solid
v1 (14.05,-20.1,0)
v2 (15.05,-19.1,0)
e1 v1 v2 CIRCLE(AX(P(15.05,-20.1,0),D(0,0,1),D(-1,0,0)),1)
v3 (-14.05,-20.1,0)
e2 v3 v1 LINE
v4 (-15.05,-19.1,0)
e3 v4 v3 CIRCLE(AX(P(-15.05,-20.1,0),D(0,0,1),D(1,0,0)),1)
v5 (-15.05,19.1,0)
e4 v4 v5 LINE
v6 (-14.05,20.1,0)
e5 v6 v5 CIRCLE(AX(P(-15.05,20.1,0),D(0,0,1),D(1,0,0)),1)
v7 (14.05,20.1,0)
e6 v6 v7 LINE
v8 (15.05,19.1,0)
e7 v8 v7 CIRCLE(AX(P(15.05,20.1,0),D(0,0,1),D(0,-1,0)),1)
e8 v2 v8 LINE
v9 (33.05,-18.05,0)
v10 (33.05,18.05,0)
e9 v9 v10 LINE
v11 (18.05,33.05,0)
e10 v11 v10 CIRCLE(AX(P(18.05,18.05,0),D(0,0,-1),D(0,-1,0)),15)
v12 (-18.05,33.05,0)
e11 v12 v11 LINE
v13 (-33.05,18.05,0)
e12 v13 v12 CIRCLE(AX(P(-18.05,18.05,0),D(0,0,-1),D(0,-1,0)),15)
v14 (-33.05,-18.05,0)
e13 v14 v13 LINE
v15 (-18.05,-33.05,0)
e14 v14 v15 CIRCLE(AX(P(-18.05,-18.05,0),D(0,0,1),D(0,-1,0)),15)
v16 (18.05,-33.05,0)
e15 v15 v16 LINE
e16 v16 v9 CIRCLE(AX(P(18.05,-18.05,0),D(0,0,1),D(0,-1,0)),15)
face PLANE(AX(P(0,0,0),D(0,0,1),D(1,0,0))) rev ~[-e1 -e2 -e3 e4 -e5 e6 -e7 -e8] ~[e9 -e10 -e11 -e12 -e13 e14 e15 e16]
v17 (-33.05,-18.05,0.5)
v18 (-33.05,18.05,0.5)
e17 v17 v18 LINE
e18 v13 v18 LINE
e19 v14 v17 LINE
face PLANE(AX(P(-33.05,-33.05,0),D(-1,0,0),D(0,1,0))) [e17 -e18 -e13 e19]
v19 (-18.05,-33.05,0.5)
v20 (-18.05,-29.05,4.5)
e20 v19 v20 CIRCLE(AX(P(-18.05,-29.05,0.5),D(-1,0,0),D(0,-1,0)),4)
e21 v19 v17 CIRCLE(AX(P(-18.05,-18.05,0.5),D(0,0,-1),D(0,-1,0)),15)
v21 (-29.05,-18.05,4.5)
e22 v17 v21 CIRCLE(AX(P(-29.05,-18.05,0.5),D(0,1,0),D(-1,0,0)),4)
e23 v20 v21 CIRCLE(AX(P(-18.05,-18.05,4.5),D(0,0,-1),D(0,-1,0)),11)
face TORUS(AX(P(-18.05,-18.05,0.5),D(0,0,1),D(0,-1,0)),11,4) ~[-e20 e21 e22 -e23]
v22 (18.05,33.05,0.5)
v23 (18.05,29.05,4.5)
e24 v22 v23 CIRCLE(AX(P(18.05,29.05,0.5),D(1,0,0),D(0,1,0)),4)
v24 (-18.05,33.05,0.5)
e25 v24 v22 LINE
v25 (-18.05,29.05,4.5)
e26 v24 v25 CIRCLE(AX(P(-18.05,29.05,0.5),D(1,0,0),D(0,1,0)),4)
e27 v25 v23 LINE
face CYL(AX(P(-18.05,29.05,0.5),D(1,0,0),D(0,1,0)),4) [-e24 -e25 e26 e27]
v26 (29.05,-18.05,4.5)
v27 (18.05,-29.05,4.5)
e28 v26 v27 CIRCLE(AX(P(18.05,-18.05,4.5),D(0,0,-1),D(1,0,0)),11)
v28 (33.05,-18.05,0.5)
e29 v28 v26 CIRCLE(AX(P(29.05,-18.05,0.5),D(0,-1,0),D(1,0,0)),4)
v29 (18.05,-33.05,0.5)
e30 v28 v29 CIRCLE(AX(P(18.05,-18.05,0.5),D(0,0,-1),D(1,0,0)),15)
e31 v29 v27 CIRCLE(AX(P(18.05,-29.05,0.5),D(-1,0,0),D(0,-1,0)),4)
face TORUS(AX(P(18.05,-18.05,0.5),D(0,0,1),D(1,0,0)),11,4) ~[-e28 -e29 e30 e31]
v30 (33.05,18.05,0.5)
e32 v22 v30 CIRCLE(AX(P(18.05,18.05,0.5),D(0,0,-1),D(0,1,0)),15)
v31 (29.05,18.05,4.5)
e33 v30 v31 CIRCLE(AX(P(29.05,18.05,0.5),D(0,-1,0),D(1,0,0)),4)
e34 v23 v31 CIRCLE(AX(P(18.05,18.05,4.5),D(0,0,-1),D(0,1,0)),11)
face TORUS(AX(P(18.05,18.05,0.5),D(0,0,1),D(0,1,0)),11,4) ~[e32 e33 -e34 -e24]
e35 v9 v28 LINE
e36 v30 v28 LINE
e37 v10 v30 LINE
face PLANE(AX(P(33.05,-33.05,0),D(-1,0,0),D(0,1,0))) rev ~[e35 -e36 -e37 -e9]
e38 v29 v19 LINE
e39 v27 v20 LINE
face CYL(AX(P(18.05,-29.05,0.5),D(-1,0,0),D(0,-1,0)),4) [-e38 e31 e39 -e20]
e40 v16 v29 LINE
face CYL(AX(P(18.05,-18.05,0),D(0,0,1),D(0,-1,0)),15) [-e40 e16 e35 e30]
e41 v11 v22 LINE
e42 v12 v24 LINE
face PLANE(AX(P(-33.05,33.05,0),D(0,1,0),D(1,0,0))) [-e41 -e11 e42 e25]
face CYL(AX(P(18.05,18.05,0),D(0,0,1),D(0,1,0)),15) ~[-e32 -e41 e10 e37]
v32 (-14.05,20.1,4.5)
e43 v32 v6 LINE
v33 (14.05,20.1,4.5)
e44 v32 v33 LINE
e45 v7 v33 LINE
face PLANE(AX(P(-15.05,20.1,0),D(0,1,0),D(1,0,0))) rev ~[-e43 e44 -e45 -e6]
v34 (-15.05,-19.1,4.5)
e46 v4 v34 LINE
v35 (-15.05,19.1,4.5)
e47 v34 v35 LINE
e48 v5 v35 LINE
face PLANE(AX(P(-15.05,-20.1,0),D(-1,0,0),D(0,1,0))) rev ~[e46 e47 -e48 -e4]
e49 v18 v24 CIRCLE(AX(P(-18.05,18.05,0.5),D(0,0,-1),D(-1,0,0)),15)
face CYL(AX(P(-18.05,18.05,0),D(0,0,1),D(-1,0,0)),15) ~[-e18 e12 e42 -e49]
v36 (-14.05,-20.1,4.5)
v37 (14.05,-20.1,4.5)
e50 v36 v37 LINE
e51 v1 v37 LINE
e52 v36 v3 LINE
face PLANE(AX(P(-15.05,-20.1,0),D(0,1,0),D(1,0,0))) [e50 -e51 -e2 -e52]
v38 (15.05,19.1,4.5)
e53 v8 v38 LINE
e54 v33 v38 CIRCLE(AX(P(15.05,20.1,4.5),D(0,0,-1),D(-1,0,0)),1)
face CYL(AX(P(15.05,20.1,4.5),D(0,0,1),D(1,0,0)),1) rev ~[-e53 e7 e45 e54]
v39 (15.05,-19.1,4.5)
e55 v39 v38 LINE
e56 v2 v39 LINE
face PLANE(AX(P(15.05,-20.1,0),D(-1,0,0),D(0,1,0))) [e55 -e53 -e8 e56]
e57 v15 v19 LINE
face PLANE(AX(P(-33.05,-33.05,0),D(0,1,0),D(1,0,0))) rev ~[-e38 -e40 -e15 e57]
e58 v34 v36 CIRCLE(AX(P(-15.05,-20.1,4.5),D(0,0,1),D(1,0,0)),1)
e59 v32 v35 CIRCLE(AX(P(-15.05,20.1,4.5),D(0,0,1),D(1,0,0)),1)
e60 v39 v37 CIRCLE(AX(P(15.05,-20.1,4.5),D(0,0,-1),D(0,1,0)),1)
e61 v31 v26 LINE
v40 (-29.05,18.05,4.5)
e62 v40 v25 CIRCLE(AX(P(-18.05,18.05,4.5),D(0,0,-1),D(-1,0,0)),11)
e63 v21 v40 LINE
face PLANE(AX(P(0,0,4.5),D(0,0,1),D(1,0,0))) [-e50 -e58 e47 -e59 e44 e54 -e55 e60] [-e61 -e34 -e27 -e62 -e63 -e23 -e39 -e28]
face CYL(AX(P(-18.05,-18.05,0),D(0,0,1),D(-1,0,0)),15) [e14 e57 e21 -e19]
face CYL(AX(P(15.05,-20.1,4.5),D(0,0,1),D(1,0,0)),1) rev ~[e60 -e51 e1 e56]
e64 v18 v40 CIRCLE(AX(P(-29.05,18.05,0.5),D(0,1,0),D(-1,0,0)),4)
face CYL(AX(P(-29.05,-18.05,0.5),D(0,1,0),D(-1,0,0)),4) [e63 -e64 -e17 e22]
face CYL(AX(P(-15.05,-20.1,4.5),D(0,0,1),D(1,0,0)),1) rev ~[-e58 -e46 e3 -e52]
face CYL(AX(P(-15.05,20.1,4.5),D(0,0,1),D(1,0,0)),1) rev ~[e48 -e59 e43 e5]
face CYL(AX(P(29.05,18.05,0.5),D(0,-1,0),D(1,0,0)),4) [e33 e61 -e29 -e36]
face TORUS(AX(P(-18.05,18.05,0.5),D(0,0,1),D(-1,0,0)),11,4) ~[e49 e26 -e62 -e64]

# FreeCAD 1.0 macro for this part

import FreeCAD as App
import Part
import Sketcher
Q = App.Units.Quantity


def edges_at(feature, points):
    """Names of the edges that pass closest to the given points."""
    edges = feature.Shape.Edges
    near = lambda p: min(range(len(edges)), key=lambda i: edges[i].distToShape(Part.Vertex(*p))[0])
    return sorted({f"Edge{near(p) + 1}" for p in points})


def add_polygon(sketch, points):
    """Adds a closed chain of lines whose ends are joined by coincident constraints."""
    first, n = sketch.GeometryCount, len(points)
    for a, b in zip(points, points[1:] + points[:1]):
        sketch.addGeometry(Part.LineSegment(App.Vector(*a, 0), App.Vector(*b, 0)), False)
    for i in range(n):
        sketch.addConstraint(Sketcher.Constraint("Coincident", first + i, 2, first + (i + 1) % n, 1))

doc = App.newDocument("Part")
params = doc.addObject("Spreadsheet::Sheet", "Params")
for row, (alias, value) in enumerate([
    ("sketch1_width", "66.1 mm"),
    ("sketch1_width2", "30.1 mm"),
    ("sketch1_height", "40.2 mm"),
    ("pad1_length", "4.5 mm"),
    ("fillet_radius", "15 mm"),
    ("fillet2_radius", "4 mm"),
    ("sketch2_diameter", "2 mm"),
    ("pocket1_length", "25 mm"),
], start=1):
    params.set(f"A{row}", alias)
    params.set(f"B{row}", "=" + value)
    params.setAlias(f"B{row}", alias)

body = doc.addObject("PartDesign::Body", "Body")

# Sketch on XY plane
sketch1 = body.newObject("Sketcher::SketchObject", "Sketch")
sketch1.AttachmentSupport = (doc.getObject("XY_Plane"), [""])
sketch1.MapMode = "FlatFace"
add_polygon(sketch1, [(-33, 33), (-33, -33), (33, -33), (33, 33)])  # lines 0-3
add_polygon(sketch1, [(15, -20), (-15, -20), (-15, 20), (15, 20)])  # lines 4-7
sketch1.addConstraint(Sketcher.Constraint("Vertical", 0))
sketch1.addConstraint(Sketcher.Constraint("Horizontal", 1))
sketch1.addConstraint(Sketcher.Constraint("Vertical", 2))
sketch1.addConstraint(Sketcher.Constraint("Horizontal", 3))
sketch1.addConstraint(Sketcher.Constraint("Horizontal", 4))
sketch1.addConstraint(Sketcher.Constraint("Vertical", 5))
sketch1.addConstraint(Sketcher.Constraint("Horizontal", 6))
sketch1.addConstraint(Sketcher.Constraint("Vertical", 7))
sketch1.addConstraint(Sketcher.Constraint("Symmetric", 0, 2, 2, 2, -1, 1))
sketch1.addConstraint(Sketcher.Constraint("Symmetric", 4, 2, 6, 2, -1, 1))
sketch1.addConstraint(Sketcher.Constraint("Equal", 3, 0))
sketch1.addConstraint(Sketcher.Constraint("DistanceX", 1, 1, 1, 2, Q("66.1 mm")))
sketch1.addConstraint(Sketcher.Constraint("DistanceX", 4, 2, 4, 1, Q("30.1 mm")))
sketch1.addConstraint(Sketcher.Constraint("DistanceY", 5, 1, 5, 2, Q("40.2 mm")))
sketch1.setExpression("Constraints[19]", "Params.sketch1_width")
sketch1.setExpression("Constraints[20]", "Params.sketch1_width2")
sketch1.setExpression("Constraints[21]", "Params.sketch1_height")
pad1 = body.newObject("PartDesign::Pad", "Pad")
pad1.Profile = sketch1
pad1.setExpression("Length", "Params.pad1_length")
doc.recompute()

fillet = body.newObject("PartDesign::Fillet", "Fillet")
fillet.Base = (pad1, edges_at(pad1, [
    (-33.05, -33.05, 2.25),
    (33.05, -33.05, 2.25),
    (-33.05, 33.05, 2.25),
    (33.05, 33.05, 2.25),
]))
fillet.setExpression("Radius", "Params.fillet_radius")
doc.recompute()

fillet2 = body.newObject("PartDesign::Fillet", "Fillet001")
fillet2.Base = (fillet, edges_at(fillet, [(-28.657, 28.657, 4.5)]))
fillet2.setExpression("Radius", "Params.fillet2_radius")

# Sketch on XY plane
sketch2 = body.newObject("Sketcher::SketchObject", "Sketch001")
sketch2.AttachmentSupport = (doc.getObject("XY_Plane"), [""])
sketch2.MapMode = "FlatFace"
sketch2.AttachmentOffset = App.Placement(App.Vector(0, 0, 4.5), App.Rotation())
sketch2.addGeometry(Part.Circle(App.Vector(15.1, 20.1, 0), App.Vector(0, 0, 1), 1), False)
sketch2.addGeometry(Part.Circle(App.Vector(15.1, -20.1, 0), App.Vector(0, 0, 1), 1), False)
sketch2.addGeometry(Part.Circle(App.Vector(-15.1, -20.1, 0), App.Vector(0, 0, 1), 1), False)
sketch2.addGeometry(Part.Circle(App.Vector(-15.1, 20.1, 0), App.Vector(0, 0, 1), 1), False)
sketch2.addConstraint(Sketcher.Constraint("Equal", 0, 1))
sketch2.addConstraint(Sketcher.Constraint("Equal", 1, 2))
sketch2.addConstraint(Sketcher.Constraint("Equal", 2, 3))
sketch2.addConstraint(Sketcher.Constraint("Symmetric", 0, 3, 2, 3, -1, 1))
sketch2.addConstraint(Sketcher.Constraint("Symmetric", 1, 3, 3, 3, -1, 1))
sketch2.addConstraint(Sketcher.Constraint("Symmetric", 1, 3, 2, 3, -2))
sketch2.addConstraint(Sketcher.Constraint("Diameter", 0, Q("2 mm")))
sketch2.addConstraint(Sketcher.Constraint("DistanceY", -1, 1, 0, 3, Q("20.1 mm")))
sketch2.addConstraint(Sketcher.Constraint("DistanceX", 2, 3, 1, 3, Q("30.1 mm")))
sketch2.setExpression("Constraints[6]", "Params.sketch2_diameter")
pocket1 = body.newObject("PartDesign::Pocket", "Pocket")
pocket1.Profile = sketch2
pocket1.setExpression("Length", "Params.pocket1_length")

doc.recompute()
